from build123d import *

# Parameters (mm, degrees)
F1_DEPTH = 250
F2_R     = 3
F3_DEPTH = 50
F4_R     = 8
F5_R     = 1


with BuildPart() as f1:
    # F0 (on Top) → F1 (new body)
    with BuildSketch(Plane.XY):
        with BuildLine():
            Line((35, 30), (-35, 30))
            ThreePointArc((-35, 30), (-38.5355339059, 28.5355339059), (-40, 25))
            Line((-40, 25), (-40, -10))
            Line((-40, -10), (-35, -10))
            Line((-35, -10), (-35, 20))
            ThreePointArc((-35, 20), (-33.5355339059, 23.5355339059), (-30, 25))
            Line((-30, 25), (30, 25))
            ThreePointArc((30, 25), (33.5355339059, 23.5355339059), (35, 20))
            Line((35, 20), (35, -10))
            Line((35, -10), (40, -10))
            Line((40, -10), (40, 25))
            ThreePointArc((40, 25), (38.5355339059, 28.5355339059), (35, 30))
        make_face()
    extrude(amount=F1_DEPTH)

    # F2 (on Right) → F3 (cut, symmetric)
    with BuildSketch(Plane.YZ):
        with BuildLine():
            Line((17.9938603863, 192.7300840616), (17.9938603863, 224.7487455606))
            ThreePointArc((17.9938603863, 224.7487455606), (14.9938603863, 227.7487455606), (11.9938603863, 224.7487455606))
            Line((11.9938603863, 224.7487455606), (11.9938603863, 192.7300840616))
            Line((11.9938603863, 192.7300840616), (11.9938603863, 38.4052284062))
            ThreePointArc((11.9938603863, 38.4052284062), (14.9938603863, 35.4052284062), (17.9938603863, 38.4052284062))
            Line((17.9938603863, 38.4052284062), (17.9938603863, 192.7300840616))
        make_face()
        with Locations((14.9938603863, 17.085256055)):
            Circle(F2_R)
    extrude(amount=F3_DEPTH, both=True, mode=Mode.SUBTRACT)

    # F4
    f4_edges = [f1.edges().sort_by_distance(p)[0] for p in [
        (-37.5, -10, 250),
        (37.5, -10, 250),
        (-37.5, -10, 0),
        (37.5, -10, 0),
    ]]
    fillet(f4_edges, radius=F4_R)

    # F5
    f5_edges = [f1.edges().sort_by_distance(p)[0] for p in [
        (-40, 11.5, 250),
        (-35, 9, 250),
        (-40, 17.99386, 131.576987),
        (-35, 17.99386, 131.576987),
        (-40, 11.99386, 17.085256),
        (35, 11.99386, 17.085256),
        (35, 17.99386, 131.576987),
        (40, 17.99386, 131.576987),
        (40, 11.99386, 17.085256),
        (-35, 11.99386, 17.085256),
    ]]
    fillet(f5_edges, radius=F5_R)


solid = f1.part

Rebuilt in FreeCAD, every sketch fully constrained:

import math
import FreeCAD as App
import Part
import Sketcher

V = App.Vector
Q = App.Units.Quantity


def edges_at(feature, points):
    """Names of the edges that pass closest to the given points."""
    edges = feature.Shape.Edges
    near = lambda p: min(range(len(edges)), key=lambda i: edges[i].distToShape(Part.Vertex(*p))[0])
    return sorted({f"Edge{near(p) + 1}" for p in points})

doc = App.newDocument("Part")
params = doc.addObject("Spreadsheet::Sheet", "Params")
for row, (alias, value) in enumerate([
    ("sketch1_radius", "5 mm"),
    ("sketch1_width", "70 mm"),
    ("sketch1_height", "35 mm"),
    ("pad1_length", "250 mm"),
    ("sketch2_diameter", "6 mm"),
    ("pocket1_length", "100 mm"),
    ("fillet_radius", "8 mm"),
    ("fillet2_radius", "1 mm"),
], start=1):
    params.set(f"A{row}", alias)
    params.set(f"B{row}", "=" + value)
    params.setAlias(f"B{row}", alias)

body = doc.addObject("PartDesign::Body", "Body")

# Sketch on XY plane
sketch1 = body.newObject("Sketcher::SketchObject", "Sketch")
sketch1.AttachmentSupport = (doc.getObject("XY_Plane"), [""])
sketch1.MapMode = "FlatFace"
sketch1.addGeometry([
    Part.LineSegment(V(35, 30, 0), V(-35, 30, 0)),  # 0
    Part.ArcOfCircle(Part.Circle(V(-35, 25, 0), V(0, 0, 1), 5), math.radians(90), math.radians(180)),  # 1
    Part.LineSegment(V(-40, 25, 0), V(-40, -10, 0)),  # 2
    Part.LineSegment(V(-40, -10, 0), V(-35, -10, 0)),  # 3
    Part.LineSegment(V(-35, -10, 0), V(-35, 20, 0)),  # 4
    Part.ArcOfCircle(Part.Circle(V(-30, 20, 0), V(0, 0, 1), 5), math.radians(90), math.radians(180)),  # 5
    Part.LineSegment(V(-30, 25, 0), V(30, 25, 0)),  # 6
    Part.ArcOfCircle(Part.Circle(V(30, 20, 0), V(0, 0, 1), 5), math.radians(0), math.radians(90)),  # 7
    Part.LineSegment(V(35, 20, 0), V(35, -10, 0)),  # 8
    Part.LineSegment(V(35, -10, 0), V(40, -10, 0)),  # 9
    Part.LineSegment(V(40, -10, 0), V(40, 25, 0)),  # 10
    Part.ArcOfCircle(Part.Circle(V(35, 25, 0), V(0, 0, 1), 5), math.radians(0), math.radians(90)),  # 11
], False)
sketch1.addConstraint([
    Sketcher.Constraint("Tangent", 0, 2, 1, 1),
    Sketcher.Constraint("Tangent", 1, 2, 2, 1),
    Sketcher.Constraint("Coincident", 2, 2, 3, 1),
    Sketcher.Constraint("Coincident", 3, 2, 4, 1),
    Sketcher.Constraint("Tangent", 4, 2, 5, 2),
    Sketcher.Constraint("Tangent", 5, 1, 6, 1),
    Sketcher.Constraint("Tangent", 6, 2, 7, 2),
    Sketcher.Constraint("Tangent", 7, 1, 8, 1),
    Sketcher.Constraint("Coincident", 8, 2, 9, 1),
    Sketcher.Constraint("Coincident", 9, 2, 10, 1),
    Sketcher.Constraint("Tangent", 10, 2, 11, 1),
    Sketcher.Constraint("Tangent", 11, 2, 0, 1),
    Sketcher.Constraint("Horizontal", 0),
    Sketcher.Constraint("Vertical", 2),
    Sketcher.Constraint("Horizontal", 3),
    Sketcher.Constraint("Vertical", 4),
    Sketcher.Constraint("Horizontal", 6),
    Sketcher.Constraint("Vertical", 8),
    Sketcher.Constraint("Horizontal", 9),
    Sketcher.Constraint("Vertical", 10),
    Sketcher.Constraint("Equal", 1, 5),
    Sketcher.Constraint("Equal", 5, 7),
    Sketcher.Constraint("Equal", 7, 11),
    Sketcher.Constraint("Symmetric", 3, 2, 8, 2, -2),
    Sketcher.Constraint("Horizontal", 1, 2, 5, 1),
    Sketcher.Constraint("Vertical", 0, 2, 3, 2),
    Sketcher.Constraint("Vertical", 11, 3, 7, 1),
    Sketcher.Constraint("Radius", 1, Q("5 mm")),
    Sketcher.Constraint("DistanceX", 0, 2, 0, 1, Q("70 mm")),
    Sketcher.Constraint("DistanceY", 2, 2, 2, 1, Q("35 mm")),
    Sketcher.Constraint("DistanceY", -1, 1, 1, 3, Q("25 mm")),
])
sketch1.setExpression("Constraints[27]", "Params.sketch1_radius")
sketch1.setExpression("Constraints[28]", "Params.sketch1_width")
sketch1.setExpression("Constraints[29]", "Params.sketch1_height")
pad1 = body.newObject("PartDesign::Pad", "Pad")
pad1.Profile = sketch1
pad1.setExpression("Length", "Params.pad1_length")

# Sketch on YZ plane
sketch2 = body.newObject("Sketcher::SketchObject", "Sketch001")
sketch2.AttachmentSupport = (doc.getObject("YZ_Plane"), [""])
sketch2.MapMode = "FlatFace"
sketch2.addGeometry([
    Part.ArcOfCircle(Part.Circle(V(14.99386, 224.748746, 0), V(0, 0, 1), 3), math.radians(0), math.radians(180)),  # 0
    Part.LineSegment(V(11.99386, 224.748746, 0), V(11.99386, 38.405228, 0)),  # 1
    Part.ArcOfCircle(Part.Circle(V(14.99386, 38.405228, 0), V(0, 0, 1), 3), math.radians(180), math.radians(360)),  # 2
    Part.LineSegment(V(17.99386, 38.405228, 0), V(17.99386, 224.748746, 0)),  # 3
    Part.Circle(V(14.99386, 17.085256, 0), V(0, 0, 1), 3),  # 4
], False)
sketch2.addConstraint([
    Sketcher.Constraint("Tangent", 0, 2, 1, 1),
    Sketcher.Constraint("Tangent", 1, 2, 2, 1),
    Sketcher.Constraint("Tangent", 2, 2, 3, 1),
    Sketcher.Constraint("Tangent", 3, 2, 0, 1),
    Sketcher.Constraint("Vertical", 1),
    Sketcher.Constraint("Vertical", 3),
    Sketcher.Constraint("Equal", 2, 4),
    Sketcher.Constraint("Vertical", 2, 3, 4, 3),
    Sketcher.Constraint("Diameter", 4, Q("6 mm")),
    Sketcher.Constraint("DistanceY", 1, 2, 1, 1, Q("186.343517 mm")),
    Sketcher.Constraint("DistanceX", -1, 1, 0, 3, Q("14.99386 mm")),
    Sketcher.Constraint("DistanceY", -1, 1, 2, 3, Q("38.405228 mm")),
    Sketcher.Constraint("DistanceY", 4, 3, 0, 3, Q("207.66349 mm")),
])
sketch2.setExpression("Constraints[8]", "Params.sketch2_diameter")
pocket1 = body.newObject("PartDesign::Pocket", "Pocket")
pocket1.Profile = sketch2
pocket1.setExpression("Length", "Params.pocket1_length")
pocket1.Midplane = True
doc.recompute()

fillet = body.newObject("PartDesign::Fillet", "Fillet")
fillet.Base = (pocket1, edges_at(pocket1, [
    (-37.5, -10, 250),
    (37.5, -10, 250),
    (-37.5, -10, 0),
    (37.5, -10, 0),
]))
fillet.setExpression("Radius", "Params.fillet_radius")
doc.recompute()

fillet2 = body.newObject("PartDesign::Fillet", "Fillet001")
fillet2.Base = (fillet, edges_at(fillet, [
    (-40, 11.5, 250),
    (-35, 9, 250),
    (-40, 17.994, 131.577),
    (-35, 17.994, 131.577),
    (-40, 11.994, 17.085),
    (35, 11.994, 17.085),
    (35, 17.994, 131.577),
    (40, 17.994, 131.577),
    (40, 11.994, 17.085),
    (-35, 11.994, 17.085),
]))
fillet2.setExpression("Radius", "Params.fillet2_radius")

doc.recompute()
